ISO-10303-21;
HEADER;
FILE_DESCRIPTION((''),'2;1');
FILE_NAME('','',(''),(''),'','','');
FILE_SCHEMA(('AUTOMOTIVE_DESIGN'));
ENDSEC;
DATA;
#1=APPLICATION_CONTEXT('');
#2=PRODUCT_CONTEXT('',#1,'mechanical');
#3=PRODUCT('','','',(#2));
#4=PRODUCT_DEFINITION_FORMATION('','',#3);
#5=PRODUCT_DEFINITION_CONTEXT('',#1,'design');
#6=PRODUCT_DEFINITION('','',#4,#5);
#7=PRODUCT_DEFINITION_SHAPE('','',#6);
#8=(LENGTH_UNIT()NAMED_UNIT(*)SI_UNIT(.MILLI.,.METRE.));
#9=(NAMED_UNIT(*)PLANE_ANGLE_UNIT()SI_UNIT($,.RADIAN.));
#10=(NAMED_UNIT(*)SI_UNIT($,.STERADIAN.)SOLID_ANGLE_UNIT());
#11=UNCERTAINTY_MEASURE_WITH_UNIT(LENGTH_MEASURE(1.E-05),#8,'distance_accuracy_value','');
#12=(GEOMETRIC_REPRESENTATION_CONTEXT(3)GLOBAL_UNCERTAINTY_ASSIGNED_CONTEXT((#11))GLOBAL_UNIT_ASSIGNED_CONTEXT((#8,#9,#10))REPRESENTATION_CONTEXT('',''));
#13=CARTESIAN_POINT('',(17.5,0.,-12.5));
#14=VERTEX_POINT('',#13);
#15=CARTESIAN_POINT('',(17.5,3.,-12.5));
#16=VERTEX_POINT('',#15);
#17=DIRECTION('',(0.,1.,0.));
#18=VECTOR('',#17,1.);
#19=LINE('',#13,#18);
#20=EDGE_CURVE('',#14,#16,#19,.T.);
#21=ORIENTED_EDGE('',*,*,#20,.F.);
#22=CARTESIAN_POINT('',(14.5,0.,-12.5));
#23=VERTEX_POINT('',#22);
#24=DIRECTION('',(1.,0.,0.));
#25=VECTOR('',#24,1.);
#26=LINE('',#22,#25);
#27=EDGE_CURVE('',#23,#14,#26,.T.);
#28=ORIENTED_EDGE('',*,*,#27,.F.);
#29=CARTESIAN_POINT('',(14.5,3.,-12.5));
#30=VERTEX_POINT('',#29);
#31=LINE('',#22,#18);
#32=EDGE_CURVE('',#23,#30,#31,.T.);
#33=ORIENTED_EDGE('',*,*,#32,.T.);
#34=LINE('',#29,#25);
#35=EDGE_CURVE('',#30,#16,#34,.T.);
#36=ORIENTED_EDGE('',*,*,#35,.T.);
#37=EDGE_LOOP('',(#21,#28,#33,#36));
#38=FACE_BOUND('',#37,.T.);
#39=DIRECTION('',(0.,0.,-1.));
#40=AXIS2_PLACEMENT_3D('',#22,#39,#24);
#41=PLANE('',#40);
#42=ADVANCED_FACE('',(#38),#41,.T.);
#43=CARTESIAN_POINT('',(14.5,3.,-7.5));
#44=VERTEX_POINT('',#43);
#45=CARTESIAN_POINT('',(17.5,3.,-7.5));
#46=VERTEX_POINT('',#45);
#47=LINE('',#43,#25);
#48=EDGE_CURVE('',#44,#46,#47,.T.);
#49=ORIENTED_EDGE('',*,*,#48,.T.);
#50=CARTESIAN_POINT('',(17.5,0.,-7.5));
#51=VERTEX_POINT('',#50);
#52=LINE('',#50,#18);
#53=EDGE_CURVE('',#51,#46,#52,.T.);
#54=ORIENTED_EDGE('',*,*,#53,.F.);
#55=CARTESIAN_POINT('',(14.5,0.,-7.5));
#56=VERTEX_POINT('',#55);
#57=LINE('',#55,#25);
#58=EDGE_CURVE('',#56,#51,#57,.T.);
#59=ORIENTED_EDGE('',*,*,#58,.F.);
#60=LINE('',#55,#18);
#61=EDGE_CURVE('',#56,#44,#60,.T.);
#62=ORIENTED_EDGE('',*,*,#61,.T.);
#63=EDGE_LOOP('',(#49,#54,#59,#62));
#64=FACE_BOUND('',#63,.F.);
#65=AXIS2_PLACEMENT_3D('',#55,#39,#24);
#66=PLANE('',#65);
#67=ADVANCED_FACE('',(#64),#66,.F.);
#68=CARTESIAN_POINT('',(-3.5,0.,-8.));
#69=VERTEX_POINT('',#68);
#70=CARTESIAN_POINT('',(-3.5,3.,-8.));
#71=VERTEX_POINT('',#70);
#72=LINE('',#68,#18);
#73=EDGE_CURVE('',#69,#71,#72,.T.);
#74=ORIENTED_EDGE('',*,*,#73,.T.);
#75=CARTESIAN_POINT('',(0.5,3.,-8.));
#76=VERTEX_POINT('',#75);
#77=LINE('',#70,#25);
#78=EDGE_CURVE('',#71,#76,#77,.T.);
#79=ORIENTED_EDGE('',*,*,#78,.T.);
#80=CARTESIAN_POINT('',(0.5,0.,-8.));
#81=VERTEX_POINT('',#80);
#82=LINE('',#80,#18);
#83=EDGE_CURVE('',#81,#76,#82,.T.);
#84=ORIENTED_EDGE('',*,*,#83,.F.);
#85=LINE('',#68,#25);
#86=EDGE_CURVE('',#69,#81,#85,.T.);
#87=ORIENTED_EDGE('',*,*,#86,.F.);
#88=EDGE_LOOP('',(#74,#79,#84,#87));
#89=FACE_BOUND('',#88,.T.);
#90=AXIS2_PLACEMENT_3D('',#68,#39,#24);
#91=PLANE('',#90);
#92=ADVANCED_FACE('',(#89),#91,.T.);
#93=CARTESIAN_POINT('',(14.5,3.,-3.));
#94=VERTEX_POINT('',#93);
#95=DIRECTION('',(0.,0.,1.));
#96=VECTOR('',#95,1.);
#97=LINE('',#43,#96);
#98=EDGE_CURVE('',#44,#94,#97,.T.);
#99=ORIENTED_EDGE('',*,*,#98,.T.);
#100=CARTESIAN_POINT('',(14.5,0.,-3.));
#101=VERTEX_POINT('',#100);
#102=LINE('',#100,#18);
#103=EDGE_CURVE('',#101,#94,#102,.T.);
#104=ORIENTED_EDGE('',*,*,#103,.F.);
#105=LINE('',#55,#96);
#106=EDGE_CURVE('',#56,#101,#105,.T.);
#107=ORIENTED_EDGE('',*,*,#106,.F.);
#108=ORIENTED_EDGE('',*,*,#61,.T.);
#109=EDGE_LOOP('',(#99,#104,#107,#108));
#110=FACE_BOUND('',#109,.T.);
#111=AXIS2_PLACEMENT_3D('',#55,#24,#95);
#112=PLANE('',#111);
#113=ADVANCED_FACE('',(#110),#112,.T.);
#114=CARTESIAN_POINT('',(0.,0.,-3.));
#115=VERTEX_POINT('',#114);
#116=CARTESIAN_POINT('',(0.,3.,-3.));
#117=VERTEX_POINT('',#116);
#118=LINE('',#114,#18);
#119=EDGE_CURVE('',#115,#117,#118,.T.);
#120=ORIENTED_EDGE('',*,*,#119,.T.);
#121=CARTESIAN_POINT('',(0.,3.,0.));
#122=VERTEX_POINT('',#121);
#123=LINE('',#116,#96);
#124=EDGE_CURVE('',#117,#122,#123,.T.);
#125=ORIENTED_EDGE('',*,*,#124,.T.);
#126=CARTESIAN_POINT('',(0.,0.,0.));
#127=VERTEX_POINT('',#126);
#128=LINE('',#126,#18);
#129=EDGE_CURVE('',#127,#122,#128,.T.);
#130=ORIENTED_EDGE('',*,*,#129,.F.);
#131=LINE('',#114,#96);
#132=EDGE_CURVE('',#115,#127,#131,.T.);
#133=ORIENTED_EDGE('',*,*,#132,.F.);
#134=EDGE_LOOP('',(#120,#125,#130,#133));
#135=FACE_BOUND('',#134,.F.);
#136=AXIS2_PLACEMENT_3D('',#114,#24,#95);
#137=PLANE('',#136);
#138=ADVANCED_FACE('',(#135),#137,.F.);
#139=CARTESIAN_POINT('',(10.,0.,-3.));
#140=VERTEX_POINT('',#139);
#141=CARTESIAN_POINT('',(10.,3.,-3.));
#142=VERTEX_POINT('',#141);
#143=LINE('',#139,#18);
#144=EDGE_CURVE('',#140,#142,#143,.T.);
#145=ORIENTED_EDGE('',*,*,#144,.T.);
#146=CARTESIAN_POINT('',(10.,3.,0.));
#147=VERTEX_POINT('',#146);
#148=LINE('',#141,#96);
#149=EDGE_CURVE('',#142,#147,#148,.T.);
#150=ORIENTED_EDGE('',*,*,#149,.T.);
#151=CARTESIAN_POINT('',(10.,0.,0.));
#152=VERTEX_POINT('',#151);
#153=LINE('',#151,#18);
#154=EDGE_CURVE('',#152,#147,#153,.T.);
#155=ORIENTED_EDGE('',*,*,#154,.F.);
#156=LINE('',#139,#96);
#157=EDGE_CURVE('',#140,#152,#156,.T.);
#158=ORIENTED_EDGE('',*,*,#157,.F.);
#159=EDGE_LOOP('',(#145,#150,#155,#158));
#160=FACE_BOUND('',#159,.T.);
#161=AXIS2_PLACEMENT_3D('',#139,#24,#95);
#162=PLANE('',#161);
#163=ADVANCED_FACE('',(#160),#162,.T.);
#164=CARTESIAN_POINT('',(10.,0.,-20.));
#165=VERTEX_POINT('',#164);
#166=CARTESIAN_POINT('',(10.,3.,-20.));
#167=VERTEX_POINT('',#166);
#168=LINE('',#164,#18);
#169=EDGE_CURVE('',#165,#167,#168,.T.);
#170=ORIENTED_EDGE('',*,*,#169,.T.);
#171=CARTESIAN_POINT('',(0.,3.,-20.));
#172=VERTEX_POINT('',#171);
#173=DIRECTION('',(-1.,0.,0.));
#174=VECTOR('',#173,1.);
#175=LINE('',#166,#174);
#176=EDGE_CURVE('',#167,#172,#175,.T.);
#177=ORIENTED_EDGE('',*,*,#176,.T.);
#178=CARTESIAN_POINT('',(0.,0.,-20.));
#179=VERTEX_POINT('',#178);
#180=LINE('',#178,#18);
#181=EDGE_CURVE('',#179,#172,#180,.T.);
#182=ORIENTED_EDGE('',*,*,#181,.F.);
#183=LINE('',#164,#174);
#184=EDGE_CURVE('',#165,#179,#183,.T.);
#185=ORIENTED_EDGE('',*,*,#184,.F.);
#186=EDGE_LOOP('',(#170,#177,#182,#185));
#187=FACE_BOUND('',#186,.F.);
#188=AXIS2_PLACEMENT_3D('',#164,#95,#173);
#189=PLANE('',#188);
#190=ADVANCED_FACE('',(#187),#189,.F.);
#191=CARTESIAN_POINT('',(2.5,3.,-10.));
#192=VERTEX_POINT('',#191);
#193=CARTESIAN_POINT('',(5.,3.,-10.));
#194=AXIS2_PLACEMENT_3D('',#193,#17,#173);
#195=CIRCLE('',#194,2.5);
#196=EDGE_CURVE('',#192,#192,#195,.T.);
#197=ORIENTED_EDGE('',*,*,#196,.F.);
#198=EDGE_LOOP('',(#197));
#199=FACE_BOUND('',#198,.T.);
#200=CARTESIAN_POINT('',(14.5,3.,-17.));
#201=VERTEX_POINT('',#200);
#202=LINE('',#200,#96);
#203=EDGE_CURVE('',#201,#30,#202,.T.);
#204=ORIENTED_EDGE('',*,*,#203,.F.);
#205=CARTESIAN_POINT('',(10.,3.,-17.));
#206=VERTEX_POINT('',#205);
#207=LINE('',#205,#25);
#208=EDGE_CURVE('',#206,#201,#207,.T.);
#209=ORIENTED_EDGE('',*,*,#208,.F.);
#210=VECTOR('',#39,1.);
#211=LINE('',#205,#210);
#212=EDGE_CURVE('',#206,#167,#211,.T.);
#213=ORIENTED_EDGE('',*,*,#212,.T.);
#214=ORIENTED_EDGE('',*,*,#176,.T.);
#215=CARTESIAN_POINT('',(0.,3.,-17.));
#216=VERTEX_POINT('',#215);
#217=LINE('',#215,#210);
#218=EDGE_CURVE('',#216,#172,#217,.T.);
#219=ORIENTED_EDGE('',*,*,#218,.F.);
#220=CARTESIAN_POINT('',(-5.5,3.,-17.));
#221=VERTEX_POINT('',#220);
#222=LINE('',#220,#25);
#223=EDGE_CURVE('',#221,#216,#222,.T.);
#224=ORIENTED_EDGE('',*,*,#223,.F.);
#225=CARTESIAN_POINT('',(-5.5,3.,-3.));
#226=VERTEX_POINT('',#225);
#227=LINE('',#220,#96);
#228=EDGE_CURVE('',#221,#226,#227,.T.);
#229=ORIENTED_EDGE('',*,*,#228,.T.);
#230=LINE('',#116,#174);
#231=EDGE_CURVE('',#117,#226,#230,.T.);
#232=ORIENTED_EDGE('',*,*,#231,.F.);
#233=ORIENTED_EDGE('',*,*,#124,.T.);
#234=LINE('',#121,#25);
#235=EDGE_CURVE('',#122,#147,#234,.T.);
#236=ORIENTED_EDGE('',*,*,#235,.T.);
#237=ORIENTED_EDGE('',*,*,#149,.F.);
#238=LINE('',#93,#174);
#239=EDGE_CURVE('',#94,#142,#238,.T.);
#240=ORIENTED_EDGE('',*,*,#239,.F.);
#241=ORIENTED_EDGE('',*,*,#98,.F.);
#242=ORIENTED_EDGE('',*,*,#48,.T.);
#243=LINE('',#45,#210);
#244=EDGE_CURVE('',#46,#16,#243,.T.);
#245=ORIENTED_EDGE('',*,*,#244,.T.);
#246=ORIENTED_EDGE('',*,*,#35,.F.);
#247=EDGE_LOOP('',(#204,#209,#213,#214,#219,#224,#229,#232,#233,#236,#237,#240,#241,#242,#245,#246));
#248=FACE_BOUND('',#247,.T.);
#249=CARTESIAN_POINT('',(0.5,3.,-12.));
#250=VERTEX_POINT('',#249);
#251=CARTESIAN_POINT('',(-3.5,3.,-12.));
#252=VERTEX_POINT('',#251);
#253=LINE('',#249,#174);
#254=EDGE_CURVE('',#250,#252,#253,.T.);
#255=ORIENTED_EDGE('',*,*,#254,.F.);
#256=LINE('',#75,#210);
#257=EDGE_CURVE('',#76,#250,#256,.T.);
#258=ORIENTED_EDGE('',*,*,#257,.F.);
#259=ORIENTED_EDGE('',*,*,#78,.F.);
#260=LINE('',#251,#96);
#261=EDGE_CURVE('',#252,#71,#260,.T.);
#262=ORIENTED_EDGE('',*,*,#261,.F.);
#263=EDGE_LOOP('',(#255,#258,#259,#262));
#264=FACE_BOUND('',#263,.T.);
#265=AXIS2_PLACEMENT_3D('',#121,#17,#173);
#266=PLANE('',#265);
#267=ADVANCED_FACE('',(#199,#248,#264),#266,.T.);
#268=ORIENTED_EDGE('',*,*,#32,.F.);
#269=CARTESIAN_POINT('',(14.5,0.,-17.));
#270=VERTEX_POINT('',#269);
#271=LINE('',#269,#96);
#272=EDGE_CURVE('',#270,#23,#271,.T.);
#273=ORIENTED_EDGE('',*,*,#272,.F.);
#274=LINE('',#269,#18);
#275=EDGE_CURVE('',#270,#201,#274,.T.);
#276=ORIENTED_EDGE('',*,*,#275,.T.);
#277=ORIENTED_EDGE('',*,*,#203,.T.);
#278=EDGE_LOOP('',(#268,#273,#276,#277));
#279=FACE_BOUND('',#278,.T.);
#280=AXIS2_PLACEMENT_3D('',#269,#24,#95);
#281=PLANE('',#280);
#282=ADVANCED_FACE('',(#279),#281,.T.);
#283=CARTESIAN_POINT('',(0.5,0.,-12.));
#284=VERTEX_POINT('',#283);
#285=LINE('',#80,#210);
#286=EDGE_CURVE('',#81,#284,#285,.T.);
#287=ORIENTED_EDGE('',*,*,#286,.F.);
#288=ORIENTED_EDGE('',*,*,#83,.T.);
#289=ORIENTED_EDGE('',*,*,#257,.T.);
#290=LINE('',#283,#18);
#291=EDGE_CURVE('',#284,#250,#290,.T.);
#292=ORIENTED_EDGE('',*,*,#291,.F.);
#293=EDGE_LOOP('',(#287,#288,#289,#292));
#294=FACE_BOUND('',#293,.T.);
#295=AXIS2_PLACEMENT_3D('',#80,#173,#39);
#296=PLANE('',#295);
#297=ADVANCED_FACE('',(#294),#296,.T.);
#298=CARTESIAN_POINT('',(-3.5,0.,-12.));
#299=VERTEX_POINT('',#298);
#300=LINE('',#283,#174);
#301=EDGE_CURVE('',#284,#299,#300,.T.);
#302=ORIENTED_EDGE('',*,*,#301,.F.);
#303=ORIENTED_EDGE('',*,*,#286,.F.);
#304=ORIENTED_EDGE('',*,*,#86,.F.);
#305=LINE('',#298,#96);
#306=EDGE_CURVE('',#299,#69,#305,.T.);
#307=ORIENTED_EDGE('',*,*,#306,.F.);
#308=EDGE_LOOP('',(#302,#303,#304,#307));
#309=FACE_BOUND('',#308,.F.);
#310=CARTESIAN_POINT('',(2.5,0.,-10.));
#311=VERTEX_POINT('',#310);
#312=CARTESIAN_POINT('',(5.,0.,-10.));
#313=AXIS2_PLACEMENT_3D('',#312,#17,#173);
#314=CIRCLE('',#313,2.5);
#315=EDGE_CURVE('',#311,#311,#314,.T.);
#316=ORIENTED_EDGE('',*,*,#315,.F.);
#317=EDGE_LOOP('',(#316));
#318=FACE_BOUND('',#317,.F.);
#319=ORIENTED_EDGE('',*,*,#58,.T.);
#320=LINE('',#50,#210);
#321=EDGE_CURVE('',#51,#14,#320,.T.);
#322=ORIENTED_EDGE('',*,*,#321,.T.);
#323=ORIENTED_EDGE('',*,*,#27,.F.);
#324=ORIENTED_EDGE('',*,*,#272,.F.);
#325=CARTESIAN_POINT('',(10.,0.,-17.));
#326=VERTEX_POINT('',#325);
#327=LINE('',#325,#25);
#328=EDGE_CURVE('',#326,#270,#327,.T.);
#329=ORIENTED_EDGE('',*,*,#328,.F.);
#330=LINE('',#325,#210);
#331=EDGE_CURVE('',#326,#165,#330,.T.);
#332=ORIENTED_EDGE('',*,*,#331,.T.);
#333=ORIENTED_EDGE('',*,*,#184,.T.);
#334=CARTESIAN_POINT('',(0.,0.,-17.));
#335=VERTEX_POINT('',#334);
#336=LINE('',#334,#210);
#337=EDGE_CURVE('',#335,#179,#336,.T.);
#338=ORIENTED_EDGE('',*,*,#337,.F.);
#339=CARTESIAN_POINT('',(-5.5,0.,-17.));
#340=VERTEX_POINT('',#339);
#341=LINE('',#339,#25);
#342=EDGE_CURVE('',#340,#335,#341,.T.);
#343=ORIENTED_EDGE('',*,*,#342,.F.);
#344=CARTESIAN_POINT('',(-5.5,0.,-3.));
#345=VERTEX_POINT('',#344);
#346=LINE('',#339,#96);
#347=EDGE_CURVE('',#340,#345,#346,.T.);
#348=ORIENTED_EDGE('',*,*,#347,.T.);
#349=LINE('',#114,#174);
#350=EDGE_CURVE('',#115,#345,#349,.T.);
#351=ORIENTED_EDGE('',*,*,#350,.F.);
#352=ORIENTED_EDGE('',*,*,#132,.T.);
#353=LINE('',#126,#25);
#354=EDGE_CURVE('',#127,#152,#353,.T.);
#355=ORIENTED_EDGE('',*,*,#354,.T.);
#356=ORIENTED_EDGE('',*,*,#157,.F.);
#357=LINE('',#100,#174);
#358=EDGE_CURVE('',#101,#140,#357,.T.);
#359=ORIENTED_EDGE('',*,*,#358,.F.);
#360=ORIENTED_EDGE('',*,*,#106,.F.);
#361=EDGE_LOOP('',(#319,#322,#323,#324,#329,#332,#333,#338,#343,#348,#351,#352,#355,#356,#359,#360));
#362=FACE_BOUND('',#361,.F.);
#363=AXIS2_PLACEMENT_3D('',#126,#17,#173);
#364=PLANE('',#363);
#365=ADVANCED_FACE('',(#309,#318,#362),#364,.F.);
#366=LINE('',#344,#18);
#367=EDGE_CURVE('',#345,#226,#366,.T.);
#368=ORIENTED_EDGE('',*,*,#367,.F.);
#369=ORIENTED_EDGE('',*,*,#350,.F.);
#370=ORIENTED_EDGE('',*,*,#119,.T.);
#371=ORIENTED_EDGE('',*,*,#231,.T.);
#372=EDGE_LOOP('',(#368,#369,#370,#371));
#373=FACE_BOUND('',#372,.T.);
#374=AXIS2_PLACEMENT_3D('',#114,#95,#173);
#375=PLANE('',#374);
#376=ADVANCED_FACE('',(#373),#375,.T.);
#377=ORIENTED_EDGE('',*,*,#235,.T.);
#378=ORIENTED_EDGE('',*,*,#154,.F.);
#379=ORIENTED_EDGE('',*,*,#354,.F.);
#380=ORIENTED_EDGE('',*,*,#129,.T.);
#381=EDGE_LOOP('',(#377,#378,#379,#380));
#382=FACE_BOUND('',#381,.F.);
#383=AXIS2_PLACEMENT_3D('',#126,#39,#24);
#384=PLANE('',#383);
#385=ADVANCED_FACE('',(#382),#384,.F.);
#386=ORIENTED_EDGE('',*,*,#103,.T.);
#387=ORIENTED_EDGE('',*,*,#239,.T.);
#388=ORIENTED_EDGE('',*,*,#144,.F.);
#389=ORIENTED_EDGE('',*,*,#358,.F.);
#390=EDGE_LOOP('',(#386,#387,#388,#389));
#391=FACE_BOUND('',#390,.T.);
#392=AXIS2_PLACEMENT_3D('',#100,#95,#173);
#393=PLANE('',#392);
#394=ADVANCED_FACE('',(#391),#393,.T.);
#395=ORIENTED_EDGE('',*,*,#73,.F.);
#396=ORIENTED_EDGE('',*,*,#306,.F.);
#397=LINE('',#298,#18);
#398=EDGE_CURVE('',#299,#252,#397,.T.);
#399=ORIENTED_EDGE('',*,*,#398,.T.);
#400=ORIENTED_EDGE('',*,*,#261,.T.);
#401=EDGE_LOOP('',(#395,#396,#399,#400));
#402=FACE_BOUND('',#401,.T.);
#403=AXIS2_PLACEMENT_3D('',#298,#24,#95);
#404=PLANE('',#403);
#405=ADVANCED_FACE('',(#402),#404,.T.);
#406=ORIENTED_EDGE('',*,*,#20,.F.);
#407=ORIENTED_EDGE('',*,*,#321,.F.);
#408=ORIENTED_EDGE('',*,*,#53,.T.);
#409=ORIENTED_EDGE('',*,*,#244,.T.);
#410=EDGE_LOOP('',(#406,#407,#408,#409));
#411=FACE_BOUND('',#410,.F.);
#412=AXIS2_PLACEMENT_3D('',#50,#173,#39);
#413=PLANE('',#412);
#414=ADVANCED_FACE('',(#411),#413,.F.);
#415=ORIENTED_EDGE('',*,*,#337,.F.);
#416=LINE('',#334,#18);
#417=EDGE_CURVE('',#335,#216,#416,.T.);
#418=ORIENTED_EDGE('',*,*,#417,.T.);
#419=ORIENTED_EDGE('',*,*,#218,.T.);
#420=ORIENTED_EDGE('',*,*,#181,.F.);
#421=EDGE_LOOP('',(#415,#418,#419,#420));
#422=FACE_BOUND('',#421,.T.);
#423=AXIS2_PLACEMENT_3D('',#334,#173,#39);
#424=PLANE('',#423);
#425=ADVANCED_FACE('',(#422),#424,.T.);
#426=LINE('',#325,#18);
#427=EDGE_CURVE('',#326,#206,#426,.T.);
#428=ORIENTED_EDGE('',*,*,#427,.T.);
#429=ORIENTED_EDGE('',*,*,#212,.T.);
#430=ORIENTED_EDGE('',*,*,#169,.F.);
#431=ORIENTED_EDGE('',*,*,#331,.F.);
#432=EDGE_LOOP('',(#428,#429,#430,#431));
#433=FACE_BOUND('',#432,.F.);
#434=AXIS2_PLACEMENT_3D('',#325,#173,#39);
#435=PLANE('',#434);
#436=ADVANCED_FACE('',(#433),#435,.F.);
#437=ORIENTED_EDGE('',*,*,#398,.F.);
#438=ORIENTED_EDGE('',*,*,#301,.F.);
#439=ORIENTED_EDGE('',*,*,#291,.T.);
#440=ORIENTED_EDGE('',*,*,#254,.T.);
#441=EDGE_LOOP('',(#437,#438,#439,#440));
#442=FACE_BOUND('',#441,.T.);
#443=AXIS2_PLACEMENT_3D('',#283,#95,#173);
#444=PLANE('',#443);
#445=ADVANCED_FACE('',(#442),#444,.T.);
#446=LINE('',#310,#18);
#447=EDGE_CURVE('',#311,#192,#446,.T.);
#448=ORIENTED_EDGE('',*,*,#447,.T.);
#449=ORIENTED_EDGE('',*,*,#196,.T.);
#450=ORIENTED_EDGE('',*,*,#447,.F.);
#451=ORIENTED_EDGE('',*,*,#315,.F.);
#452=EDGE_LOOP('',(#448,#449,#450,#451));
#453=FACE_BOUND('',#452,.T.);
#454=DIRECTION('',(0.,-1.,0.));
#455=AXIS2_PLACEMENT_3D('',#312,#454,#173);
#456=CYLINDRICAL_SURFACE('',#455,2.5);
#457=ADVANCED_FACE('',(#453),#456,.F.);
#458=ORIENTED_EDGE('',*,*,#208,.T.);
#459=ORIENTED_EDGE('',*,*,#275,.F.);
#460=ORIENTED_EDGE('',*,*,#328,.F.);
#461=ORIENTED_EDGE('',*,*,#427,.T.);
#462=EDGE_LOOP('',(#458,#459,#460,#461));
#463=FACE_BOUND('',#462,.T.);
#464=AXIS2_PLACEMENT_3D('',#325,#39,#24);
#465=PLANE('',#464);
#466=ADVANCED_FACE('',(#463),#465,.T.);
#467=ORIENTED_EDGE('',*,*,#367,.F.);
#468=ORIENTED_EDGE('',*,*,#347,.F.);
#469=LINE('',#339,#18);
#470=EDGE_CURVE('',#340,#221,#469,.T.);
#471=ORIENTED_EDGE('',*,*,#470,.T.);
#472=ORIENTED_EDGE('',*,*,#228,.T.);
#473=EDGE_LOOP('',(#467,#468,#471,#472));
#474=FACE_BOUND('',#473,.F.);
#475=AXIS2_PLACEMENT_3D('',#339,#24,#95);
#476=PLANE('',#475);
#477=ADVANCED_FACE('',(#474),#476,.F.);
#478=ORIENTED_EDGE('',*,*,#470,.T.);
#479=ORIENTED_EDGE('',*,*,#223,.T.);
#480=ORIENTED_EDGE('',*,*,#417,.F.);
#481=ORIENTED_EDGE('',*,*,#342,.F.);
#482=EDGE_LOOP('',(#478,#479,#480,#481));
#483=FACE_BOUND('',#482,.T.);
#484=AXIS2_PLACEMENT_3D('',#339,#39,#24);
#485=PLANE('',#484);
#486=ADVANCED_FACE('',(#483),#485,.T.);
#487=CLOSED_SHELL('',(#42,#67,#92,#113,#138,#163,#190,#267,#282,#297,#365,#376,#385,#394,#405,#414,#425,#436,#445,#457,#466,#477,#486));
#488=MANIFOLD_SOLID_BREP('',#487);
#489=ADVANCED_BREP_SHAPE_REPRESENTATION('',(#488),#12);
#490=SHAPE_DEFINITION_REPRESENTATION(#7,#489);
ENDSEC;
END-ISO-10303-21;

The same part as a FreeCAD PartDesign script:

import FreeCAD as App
import Part
import Sketcher
from FreeCAD import Vector
Q = App.Units.Quantity


def add_polygon(sketch, points):
    """Adds a closed chain of lines whose ends are joined by coincident constraints."""
    first, n = sketch.GeometryCount, len(points)
    for a, b in zip(points, points[1:] + points[:1]):
        sketch.addGeometry(Part.LineSegment(App.Vector(*a, 0), App.Vector(*b, 0)), False)
    for i in range(n):
        sketch.addConstraint(Sketcher.Constraint("Coincident", first + i, 2, first + (i + 1) % n, 1))

doc = App.newDocument("Part")
body = doc.addObject("PartDesign::Body", "Body")

# Sketch on XZ plane
sketch1 = doc.addObject("Sketcher::SketchObject", "Sketch")
body.addObject(sketch1)
sketch1.AttachmentSupport = (doc.XZ_Plane, [""])
sketch1.MapMode = "FlatFace"
add_polygon(sketch1, [(0, -3), (0, 0), (10, 0), (10, -3), (14.5, -3), (14.5, -7.5), (17.5, -7.5), (17.5, -12.5), (14.5, -12.5), (14.5, -17), (10, -17), (10, -20), (0, -20), (0, -17), (-5.5, -17), (-5.5, -3)])  # lines 0-15
sketch1.addGeometry(Part.Circle(Vector(5, -10, 0), Vector(0, 0, 1), 2.5), False)  # 16
add_polygon(sketch1, [(0.5, -12), (0.5, -8), (-3.5, -8), (-3.5, -12)])  # lines 17-20
sketch1.addConstraint([
    Sketcher.Constraint("Vertical", 0),
    Sketcher.Constraint("Horizontal", 1),
    Sketcher.Constraint("Vertical", 2),
    Sketcher.Constraint("Horizontal", 3),
    Sketcher.Constraint("Vertical", 4),
    Sketcher.Constraint("Horizontal", 5),
    Sketcher.Constraint("Vertical", 6),
    Sketcher.Constraint("Horizontal", 7),
    Sketcher.Constraint("Vertical", 8),
    Sketcher.Constraint("Horizontal", 9),
    Sketcher.Constraint("Vertical", 10),
    Sketcher.Constraint("Horizontal", 11),
    Sketcher.Constraint("Vertical", 12),
    Sketcher.Constraint("Horizontal", 13),
    Sketcher.Constraint("Vertical", 14),
    Sketcher.Constraint("Horizontal", 15),
    Sketcher.Constraint("Vertical", 17),
    Sketcher.Constraint("Horizontal", 18),
    Sketcher.Constraint("Vertical", 19),
    Sketcher.Constraint("Horizontal", 20),
    Sketcher.Constraint("Coincident", 0, 2, -1, 1),
    Sketcher.Constraint("PointOnObject", 11, 2, -2),
    Sketcher.Constraint("Horizontal", 9, 2, 12, 2),
    Sketcher.Constraint("Horizontal", 3, 2, 14, 2),
    Sketcher.Constraint("Vertical", 4, 2, 7, 2),
    Sketcher.Constraint("Vertical", 2, 2, 9, 2),
    Sketcher.Constraint("Equal", 7, 0),
    Sketcher.Constraint("Equal", 9, 4),
    Sketcher.Constraint("Equal", 4, 8),
    Sketcher.Constraint("Equal", 2, 10),
    Sketcher.Constraint("Equal", 20, 17),
    Sketcher.Constraint("Diameter", 16, Q("5 mm")),
    Sketcher.Constraint("DistanceX", 1, 1, 1, 2, Q("10 mm")),
    Sketcher.Constraint("DistanceX", 5, 1, 5, 2, Q("3 mm")),
    Sketcher.Constraint("DistanceX", 18, 2, 18, 1, Q("4 mm")),
    Sketcher.Constraint("DistanceY", 6, 2, 6, 1, Q("5 mm")),
    Sketcher.Constraint("DistanceX", -1, 1, 16, 3, Q("5 mm")),
    Sketcher.Constraint("DistanceY", 16, 3, -1, 1, Q("10 mm")),
    Sketcher.Constraint("DistanceY", 10, 2, -1, 1, Q("20 mm")),
    Sketcher.Constraint("DistanceY", 16, 3, 17, 2, Q("2 mm")),
    Sketcher.Constraint("DistanceX", 14, 2, 18, 2, Q("2 mm")),
    Sketcher.Constraint("DistanceX", 13, 2, 13, 1, Q("5.5 mm")),
])
pad1 = doc.addObject("PartDesign::Pad", "Pad")
body.addObject(pad1)
pad1.Profile = sketch1
pad1.Length = 3
pad1.Reversed = True

doc.recompute()
